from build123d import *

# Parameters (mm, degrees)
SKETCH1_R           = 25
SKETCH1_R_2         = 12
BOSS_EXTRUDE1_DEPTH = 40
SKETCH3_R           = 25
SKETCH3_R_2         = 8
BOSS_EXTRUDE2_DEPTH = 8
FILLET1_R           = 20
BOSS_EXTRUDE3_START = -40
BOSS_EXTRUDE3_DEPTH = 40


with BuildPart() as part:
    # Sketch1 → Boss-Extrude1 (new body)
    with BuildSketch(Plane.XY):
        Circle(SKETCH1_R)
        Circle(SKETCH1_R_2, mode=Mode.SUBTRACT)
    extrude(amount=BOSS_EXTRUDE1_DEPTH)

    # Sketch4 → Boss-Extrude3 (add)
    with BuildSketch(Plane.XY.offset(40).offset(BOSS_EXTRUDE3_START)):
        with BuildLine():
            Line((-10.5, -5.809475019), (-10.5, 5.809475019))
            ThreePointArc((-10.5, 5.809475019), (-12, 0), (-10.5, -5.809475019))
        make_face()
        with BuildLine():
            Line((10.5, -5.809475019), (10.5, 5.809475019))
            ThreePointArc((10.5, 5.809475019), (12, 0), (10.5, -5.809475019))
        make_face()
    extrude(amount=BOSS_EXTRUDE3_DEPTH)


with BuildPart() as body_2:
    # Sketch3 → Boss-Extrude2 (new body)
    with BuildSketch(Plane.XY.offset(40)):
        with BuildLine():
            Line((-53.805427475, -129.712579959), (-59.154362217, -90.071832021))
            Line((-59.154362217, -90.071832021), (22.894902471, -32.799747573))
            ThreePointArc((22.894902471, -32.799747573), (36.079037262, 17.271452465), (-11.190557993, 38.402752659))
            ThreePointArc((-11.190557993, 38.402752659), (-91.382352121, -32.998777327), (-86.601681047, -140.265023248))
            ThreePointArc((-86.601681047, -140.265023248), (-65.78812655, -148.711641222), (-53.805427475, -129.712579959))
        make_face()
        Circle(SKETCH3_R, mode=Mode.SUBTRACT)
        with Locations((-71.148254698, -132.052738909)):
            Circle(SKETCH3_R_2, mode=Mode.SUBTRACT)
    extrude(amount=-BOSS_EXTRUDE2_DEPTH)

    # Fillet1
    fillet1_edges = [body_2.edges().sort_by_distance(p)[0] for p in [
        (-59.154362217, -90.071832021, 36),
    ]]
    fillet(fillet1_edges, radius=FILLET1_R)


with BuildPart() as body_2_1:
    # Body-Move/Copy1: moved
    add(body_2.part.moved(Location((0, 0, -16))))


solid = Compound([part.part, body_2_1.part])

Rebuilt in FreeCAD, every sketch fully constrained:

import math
import FreeCAD as App
import Part
import Sketcher


def edges_at(feature, points):
    """Names of the edges that pass closest to the given points."""
    edges = feature.Shape.Edges
    near = lambda p: min(range(len(edges)), key=lambda i: edges[i].distToShape(Part.Vertex(*p))[0])
    return sorted({f"Edge{near(p) + 1}" for p in points})

doc = App.newDocument("Part")
body = doc.addObject("PartDesign::Body", "Body")

# Sketch on XY plane
sketch1 = doc.addObject("Sketcher::SketchObject", "Sketch")
body.addObject(sketch1)
sketch1.AttachmentSupport = (doc.XY_Plane, [""])
sketch1.MapMode = "FlatFace"
sketch1.addGeometry([
    Part.Circle(App.Vector(0, 0, 0), App.Vector(0, 0, 1), 25),
    Part.Circle(App.Vector(0, 0, 0), App.Vector(0, 0, 1), 12),
], False)
sketch1.addConstraint([
    Sketcher.Constraint("Coincident", 0, 3, -1, 1),
    Sketcher.Constraint("Coincident", 1, 3, -1, 1),
    Sketcher.Constraint("Diameter", 0, 50.0),
    Sketcher.Constraint("Diameter", 1, 24.0),
])
pad1 = doc.addObject("PartDesign::Pad", "Pad")
body.addObject(pad1)
pad1.Profile = sketch1
pad1.Length = 40

# Sketch on XY plane
sketch2 = doc.addObject("Sketcher::SketchObject", "Sketch001")
body.addObject(sketch2)
sketch2.AttachmentSupport = (doc.XY_Plane, [""])
sketch2.MapMode = "FlatFace"
sketch2.addGeometry([
    Part.LineSegment(App.Vector(-10, -6, 0), App.Vector(-10, 6, 0)),
    Part.ArcOfCircle(Part.Circle(App.Vector(0, 0, 0), App.Vector(0, 0, 1), 12), math.radians(151), math.radians(209)),
    Part.LineSegment(App.Vector(10, 6, 0), App.Vector(10, -6, 0)),
    Part.ArcOfCircle(Part.Circle(App.Vector(0, 0, 0), App.Vector(0, 0, 1), 12), math.radians(-29), math.radians(29)),
], False)
sketch2.addConstraint([
    Sketcher.Constraint("Coincident", 0, 1, 1, 2),
    Sketcher.Constraint("Coincident", 1, 1, 0, 2),
    Sketcher.Constraint("Coincident", 2, 1, 3, 2),
    Sketcher.Constraint("Coincident", 3, 1, 2, 2),
    Sketcher.Constraint("Vertical", 0),
    Sketcher.Constraint("Vertical", 2),
    Sketcher.Constraint("Coincident", 1, 3, -1, 1),
    Sketcher.Constraint("Coincident", 3, 3, -1, 1),
    Sketcher.Constraint("Equal", 1, 3),
    Sketcher.Constraint("Horizontal", 1, 1, 2, 1),
    Sketcher.Constraint("Radius", 1, 12.0),
    Sketcher.Constraint("DistanceX", 1, 1, 2, 1, 21.0),
])
pad2 = doc.addObject("PartDesign::Pad", "Pad001")
body.addObject(pad2)
pad2.Profile = sketch2
pad2.Length = 40
body2 = doc.addObject("PartDesign::Body", "Body001")

# Sketch on XY plane
sketch3 = doc.addObject("Sketcher::SketchObject", "Sketch002")
body2.addObject(sketch3)
sketch3.AttachmentSupport = (doc.getObject("XY_Plane001"), [""])
sketch3.MapMode = "FlatFace"
sketch3.AttachmentOffset = App.Placement(App.Vector(0, 0, 40), App.Rotation())
sketch3.addGeometry([
    Part.LineSegment(App.Vector(-54, -130, 0), App.Vector(-59, -90, 0)),  # 0
    Part.LineSegment(App.Vector(-59, -90, 0), App.Vector(23, -33, 0)),  # 1
    Part.ArcOfCircle(Part.Circle(App.Vector(0, 0, 0), App.Vector(0, 0, 1), 40), math.radians(-55), math.radians(106)),  # 2
    Part.ArcOfCircle(Part.Circle(App.Vector(24, -82, 0), App.Vector(0, 0, 1), 125), math.radians(106), math.radians(208)),  # 3
    Part.ArcOfCircle(Part.Circle(App.Vector(-71, -132, 0), App.Vector(0, 0, 1), 18), math.radians(-152), math.radians(8)),  # 4
    Part.Circle(App.Vector(-71, -132, 0), App.Vector(0, 0, 1), 8),  # 5
    Part.Circle(App.Vector(0, 0, 0), App.Vector(0, 0, 1), 25),  # 6
], False)
sketch3.addConstraint([
    Sketcher.Constraint("Coincident", 0, 2, 1, 1),
    Sketcher.Constraint("Tangent", 1, 2, 2, 1),
    Sketcher.Constraint("Tangent", 2, 2, 3, 1),
    Sketcher.Constraint("Tangent", 3, 2, 4, 1),
    Sketcher.Constraint("Tangent", 4, 2, 0, 1),
    Sketcher.Constraint("Coincident", 2, 3, -1, 1),
    Sketcher.Constraint("Coincident", 6, 3, -1, 1),
    Sketcher.Constraint("Coincident", 5, 3, 4, 3),
    Sketcher.Constraint("Diameter", 5, 16.0),
    Sketcher.Constraint("Diameter", 6, 50.0),
    Sketcher.Constraint("Radius", 2, 40.0),
    Sketcher.Constraint("Radius", 3, 125.0),
    Sketcher.Constraint("Radius", 4, 17.5),
    Sketcher.Constraint("Distance", 0, 40.0),
    Sketcher.Constraint("DistanceY", 3, 3, 1, 2, 48.806102),
    Sketcher.Constraint("DistanceY", 1, 2, 2, 2, 71.2025),
    Sketcher.Constraint("Distance", 1, 100.060849),
])
pad3 = doc.addObject("PartDesign::Pad", "Pad002")
body2.addObject(pad3)
pad3.Profile = sketch3
pad3.Length = 8
pad3.Reversed = True
doc.recompute()

fillet = doc.addObject("PartDesign::Fillet", "Fillet")
body2.addObject(fillet)
fillet.Base = (pad3, edges_at(pad3, [(-59.154, -90.072, 36)]))
fillet.Radius = 20
body3 = doc.addObject("PartDesign::Body", "Body002")
doc.recompute()

body2.Placement = App.Placement(App.Vector(0, 0, -16), App.Rotation(App.Vector(0, 0, 1), 0))
boolean = doc.addObject("PartDesign::Boolean", "Boolean")
body3.addObject(boolean)
boolean.Type = "Fuse"
boolean.addObjects([body2])

doc.recompute()
